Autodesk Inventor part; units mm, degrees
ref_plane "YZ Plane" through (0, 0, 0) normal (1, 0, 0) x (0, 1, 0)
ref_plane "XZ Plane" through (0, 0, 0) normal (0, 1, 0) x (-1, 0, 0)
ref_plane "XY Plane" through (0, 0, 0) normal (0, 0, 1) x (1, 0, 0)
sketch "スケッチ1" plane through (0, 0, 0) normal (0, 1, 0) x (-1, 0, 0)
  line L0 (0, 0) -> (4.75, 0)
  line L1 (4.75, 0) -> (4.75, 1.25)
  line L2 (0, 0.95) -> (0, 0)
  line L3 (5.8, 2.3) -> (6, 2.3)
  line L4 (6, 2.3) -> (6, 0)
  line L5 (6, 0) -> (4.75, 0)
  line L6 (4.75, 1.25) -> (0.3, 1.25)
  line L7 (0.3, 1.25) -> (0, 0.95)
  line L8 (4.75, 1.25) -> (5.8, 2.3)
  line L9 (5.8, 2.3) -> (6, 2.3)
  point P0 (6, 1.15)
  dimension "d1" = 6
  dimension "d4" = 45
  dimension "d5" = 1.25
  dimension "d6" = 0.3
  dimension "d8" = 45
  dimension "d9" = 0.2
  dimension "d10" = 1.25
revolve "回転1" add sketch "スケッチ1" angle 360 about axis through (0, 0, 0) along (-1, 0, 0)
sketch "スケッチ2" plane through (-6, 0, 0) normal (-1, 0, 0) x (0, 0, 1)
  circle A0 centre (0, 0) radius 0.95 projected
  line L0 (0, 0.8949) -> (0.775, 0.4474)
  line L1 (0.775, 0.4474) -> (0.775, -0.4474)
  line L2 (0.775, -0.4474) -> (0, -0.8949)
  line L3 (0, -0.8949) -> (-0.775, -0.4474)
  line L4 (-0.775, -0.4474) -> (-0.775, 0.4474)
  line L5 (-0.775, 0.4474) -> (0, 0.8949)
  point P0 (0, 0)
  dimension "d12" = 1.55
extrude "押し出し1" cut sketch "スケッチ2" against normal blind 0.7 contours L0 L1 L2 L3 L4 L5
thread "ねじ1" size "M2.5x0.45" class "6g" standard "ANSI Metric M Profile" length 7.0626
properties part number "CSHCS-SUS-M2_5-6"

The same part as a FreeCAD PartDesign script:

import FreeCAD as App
import Part
import Sketcher

V = App.Vector
Q = App.Units.Quantity


def add_polygon(sketch, points):
    """Adds a closed chain of lines whose ends are joined by coincident constraints."""
    first, n = sketch.GeometryCount, len(points)
    for a, b in zip(points, points[1:] + points[:1]):
        sketch.addGeometry(Part.LineSegment(App.Vector(*a, 0), App.Vector(*b, 0)), False)
    for i in range(n):
        sketch.addConstraint(Sketcher.Constraint("Coincident", first + i, 2, first + (i + 1) % n, 1))

doc = App.newDocument("Part")
params = doc.addObject("Spreadsheet::Sheet", "Params")
for row, (alias, value) in enumerate([
    ("sketch1_width", "6 mm"),
    ("sketch1_width2", "0.2 mm"),
    ("revolution_angle", "360 deg"),
    ("pocket1_length", "0.7 mm"),
], start=1):
    params.set(f"A{row}", alias)
    params.set(f"B{row}", "=" + value)
    params.setAlias(f"B{row}", alias)

body = doc.addObject("PartDesign::Body", "Body")

sketch1 = body.newObject("Sketcher::SketchObject", "Sketch")
sketch1.AttachmentSupport = (doc.getObject("XZ_Plane"), [""])
sketch1.MapMode = "FlatFace"
add_polygon(sketch1, [(0, 0.95), (0, 0), (-6, 0), (-6, 2.3), (-5.8, 2.3), (-4.75, 1.25), (-0.3, 1.25)])
sketch1.addConstraint(Sketcher.Constraint("Vertical", 0))
sketch1.addConstraint(Sketcher.Constraint("Horizontal", 1))
sketch1.addConstraint(Sketcher.Constraint("Vertical", 2))
sketch1.addConstraint(Sketcher.Constraint("Horizontal", 3))
sketch1.addConstraint(Sketcher.Constraint("Horizontal", 5))
sketch1.addConstraint(Sketcher.Constraint("Coincident", 0, 2, -1, 1))
sketch1.addConstraint(Sketcher.Constraint("Parallel", 4, 6))
sketch1.addConstraint(Sketcher.Constraint("DistanceX", 1, 2, 1, 1, Q("6 mm")))
sketch1.addConstraint(Sketcher.Constraint("Angle", 4, Q("-45 deg")))
sketch1.addConstraint(Sketcher.Constraint("DistanceX", 3, 1, 3, 2, Q("0.2 mm")))
sketch1.addConstraint(Sketcher.Constraint("DistanceX", 5, 2, -1, 1, Q("0.3 mm")))
sketch1.addConstraint(Sketcher.Constraint("DistanceY", -1, 1, 4, 2, Q("1.25 mm")))
sketch1.addConstraint(Sketcher.Constraint("DistanceX", 2, 2, 4, 2, Q("1.25 mm")))
sketch1.setExpression("Constraints[14]", "Params.sketch1_width")
sketch1.setExpression("Constraints[16]", "Params.sketch1_width2")
revolution = body.newObject("PartDesign::Revolution", "Revolution")
revolution.Profile = sketch1
revolution.ReferenceAxis = (sketch1, ["H_Axis"])
revolution.setExpression("Angle", "Params.revolution_angle")

sketch2 = body.newObject("Sketcher::SketchObject", "Sketch001")
sketch2.AttachmentSupport = (doc.getObject("YZ_Plane"), [""])
sketch2.MapMode = "FlatFace"
sketch2.AttachmentOffset = App.Placement(V(0, 0, -6), App.Rotation())
add_polygon(sketch2, [(0.4474, 0.775), (0.8949, 0), (0.4474, -0.775), (-0.4474, -0.775), (-0.8949, 0), (-0.4474, 0.775)])
sketch2.addConstraint(Sketcher.Constraint("Horizontal", 2))
sketch2.addConstraint(Sketcher.Constraint("Horizontal", 5))
sketch2.addConstraint(Sketcher.Constraint("Symmetric", 0, 2, 3, 2, -1, 1))
sketch2.addConstraint(Sketcher.Constraint("Symmetric", 1, 2, 4, 2, -1, 1))
sketch2.addConstraint(Sketcher.Constraint("PointOnObject", 0, 2, -1))
sketch2.addConstraint(Sketcher.Constraint("Parallel", 0, 3))
sketch2.addConstraint(Sketcher.Constraint("Vertical", 2, 2, 4, 2))
sketch2.addConstraint(Sketcher.Constraint("DistanceY", 2, 2, 4, 2, Q("1.55 mm")))
sketch2.addConstraint(Sketcher.Constraint("Distance", 0, Q("0.895 mm")))
sketch2.addConstraint(Sketcher.Constraint("DistanceX", 2, 2, 2, 1, Q("0.8948 mm")))
pocket1 = body.newObject("PartDesign::Pocket", "Pocket")
pocket1.Profile = sketch2
pocket1.setExpression("Length", "Params.pocket1_length")
pocket1.Reversed = True

doc.recompute()
